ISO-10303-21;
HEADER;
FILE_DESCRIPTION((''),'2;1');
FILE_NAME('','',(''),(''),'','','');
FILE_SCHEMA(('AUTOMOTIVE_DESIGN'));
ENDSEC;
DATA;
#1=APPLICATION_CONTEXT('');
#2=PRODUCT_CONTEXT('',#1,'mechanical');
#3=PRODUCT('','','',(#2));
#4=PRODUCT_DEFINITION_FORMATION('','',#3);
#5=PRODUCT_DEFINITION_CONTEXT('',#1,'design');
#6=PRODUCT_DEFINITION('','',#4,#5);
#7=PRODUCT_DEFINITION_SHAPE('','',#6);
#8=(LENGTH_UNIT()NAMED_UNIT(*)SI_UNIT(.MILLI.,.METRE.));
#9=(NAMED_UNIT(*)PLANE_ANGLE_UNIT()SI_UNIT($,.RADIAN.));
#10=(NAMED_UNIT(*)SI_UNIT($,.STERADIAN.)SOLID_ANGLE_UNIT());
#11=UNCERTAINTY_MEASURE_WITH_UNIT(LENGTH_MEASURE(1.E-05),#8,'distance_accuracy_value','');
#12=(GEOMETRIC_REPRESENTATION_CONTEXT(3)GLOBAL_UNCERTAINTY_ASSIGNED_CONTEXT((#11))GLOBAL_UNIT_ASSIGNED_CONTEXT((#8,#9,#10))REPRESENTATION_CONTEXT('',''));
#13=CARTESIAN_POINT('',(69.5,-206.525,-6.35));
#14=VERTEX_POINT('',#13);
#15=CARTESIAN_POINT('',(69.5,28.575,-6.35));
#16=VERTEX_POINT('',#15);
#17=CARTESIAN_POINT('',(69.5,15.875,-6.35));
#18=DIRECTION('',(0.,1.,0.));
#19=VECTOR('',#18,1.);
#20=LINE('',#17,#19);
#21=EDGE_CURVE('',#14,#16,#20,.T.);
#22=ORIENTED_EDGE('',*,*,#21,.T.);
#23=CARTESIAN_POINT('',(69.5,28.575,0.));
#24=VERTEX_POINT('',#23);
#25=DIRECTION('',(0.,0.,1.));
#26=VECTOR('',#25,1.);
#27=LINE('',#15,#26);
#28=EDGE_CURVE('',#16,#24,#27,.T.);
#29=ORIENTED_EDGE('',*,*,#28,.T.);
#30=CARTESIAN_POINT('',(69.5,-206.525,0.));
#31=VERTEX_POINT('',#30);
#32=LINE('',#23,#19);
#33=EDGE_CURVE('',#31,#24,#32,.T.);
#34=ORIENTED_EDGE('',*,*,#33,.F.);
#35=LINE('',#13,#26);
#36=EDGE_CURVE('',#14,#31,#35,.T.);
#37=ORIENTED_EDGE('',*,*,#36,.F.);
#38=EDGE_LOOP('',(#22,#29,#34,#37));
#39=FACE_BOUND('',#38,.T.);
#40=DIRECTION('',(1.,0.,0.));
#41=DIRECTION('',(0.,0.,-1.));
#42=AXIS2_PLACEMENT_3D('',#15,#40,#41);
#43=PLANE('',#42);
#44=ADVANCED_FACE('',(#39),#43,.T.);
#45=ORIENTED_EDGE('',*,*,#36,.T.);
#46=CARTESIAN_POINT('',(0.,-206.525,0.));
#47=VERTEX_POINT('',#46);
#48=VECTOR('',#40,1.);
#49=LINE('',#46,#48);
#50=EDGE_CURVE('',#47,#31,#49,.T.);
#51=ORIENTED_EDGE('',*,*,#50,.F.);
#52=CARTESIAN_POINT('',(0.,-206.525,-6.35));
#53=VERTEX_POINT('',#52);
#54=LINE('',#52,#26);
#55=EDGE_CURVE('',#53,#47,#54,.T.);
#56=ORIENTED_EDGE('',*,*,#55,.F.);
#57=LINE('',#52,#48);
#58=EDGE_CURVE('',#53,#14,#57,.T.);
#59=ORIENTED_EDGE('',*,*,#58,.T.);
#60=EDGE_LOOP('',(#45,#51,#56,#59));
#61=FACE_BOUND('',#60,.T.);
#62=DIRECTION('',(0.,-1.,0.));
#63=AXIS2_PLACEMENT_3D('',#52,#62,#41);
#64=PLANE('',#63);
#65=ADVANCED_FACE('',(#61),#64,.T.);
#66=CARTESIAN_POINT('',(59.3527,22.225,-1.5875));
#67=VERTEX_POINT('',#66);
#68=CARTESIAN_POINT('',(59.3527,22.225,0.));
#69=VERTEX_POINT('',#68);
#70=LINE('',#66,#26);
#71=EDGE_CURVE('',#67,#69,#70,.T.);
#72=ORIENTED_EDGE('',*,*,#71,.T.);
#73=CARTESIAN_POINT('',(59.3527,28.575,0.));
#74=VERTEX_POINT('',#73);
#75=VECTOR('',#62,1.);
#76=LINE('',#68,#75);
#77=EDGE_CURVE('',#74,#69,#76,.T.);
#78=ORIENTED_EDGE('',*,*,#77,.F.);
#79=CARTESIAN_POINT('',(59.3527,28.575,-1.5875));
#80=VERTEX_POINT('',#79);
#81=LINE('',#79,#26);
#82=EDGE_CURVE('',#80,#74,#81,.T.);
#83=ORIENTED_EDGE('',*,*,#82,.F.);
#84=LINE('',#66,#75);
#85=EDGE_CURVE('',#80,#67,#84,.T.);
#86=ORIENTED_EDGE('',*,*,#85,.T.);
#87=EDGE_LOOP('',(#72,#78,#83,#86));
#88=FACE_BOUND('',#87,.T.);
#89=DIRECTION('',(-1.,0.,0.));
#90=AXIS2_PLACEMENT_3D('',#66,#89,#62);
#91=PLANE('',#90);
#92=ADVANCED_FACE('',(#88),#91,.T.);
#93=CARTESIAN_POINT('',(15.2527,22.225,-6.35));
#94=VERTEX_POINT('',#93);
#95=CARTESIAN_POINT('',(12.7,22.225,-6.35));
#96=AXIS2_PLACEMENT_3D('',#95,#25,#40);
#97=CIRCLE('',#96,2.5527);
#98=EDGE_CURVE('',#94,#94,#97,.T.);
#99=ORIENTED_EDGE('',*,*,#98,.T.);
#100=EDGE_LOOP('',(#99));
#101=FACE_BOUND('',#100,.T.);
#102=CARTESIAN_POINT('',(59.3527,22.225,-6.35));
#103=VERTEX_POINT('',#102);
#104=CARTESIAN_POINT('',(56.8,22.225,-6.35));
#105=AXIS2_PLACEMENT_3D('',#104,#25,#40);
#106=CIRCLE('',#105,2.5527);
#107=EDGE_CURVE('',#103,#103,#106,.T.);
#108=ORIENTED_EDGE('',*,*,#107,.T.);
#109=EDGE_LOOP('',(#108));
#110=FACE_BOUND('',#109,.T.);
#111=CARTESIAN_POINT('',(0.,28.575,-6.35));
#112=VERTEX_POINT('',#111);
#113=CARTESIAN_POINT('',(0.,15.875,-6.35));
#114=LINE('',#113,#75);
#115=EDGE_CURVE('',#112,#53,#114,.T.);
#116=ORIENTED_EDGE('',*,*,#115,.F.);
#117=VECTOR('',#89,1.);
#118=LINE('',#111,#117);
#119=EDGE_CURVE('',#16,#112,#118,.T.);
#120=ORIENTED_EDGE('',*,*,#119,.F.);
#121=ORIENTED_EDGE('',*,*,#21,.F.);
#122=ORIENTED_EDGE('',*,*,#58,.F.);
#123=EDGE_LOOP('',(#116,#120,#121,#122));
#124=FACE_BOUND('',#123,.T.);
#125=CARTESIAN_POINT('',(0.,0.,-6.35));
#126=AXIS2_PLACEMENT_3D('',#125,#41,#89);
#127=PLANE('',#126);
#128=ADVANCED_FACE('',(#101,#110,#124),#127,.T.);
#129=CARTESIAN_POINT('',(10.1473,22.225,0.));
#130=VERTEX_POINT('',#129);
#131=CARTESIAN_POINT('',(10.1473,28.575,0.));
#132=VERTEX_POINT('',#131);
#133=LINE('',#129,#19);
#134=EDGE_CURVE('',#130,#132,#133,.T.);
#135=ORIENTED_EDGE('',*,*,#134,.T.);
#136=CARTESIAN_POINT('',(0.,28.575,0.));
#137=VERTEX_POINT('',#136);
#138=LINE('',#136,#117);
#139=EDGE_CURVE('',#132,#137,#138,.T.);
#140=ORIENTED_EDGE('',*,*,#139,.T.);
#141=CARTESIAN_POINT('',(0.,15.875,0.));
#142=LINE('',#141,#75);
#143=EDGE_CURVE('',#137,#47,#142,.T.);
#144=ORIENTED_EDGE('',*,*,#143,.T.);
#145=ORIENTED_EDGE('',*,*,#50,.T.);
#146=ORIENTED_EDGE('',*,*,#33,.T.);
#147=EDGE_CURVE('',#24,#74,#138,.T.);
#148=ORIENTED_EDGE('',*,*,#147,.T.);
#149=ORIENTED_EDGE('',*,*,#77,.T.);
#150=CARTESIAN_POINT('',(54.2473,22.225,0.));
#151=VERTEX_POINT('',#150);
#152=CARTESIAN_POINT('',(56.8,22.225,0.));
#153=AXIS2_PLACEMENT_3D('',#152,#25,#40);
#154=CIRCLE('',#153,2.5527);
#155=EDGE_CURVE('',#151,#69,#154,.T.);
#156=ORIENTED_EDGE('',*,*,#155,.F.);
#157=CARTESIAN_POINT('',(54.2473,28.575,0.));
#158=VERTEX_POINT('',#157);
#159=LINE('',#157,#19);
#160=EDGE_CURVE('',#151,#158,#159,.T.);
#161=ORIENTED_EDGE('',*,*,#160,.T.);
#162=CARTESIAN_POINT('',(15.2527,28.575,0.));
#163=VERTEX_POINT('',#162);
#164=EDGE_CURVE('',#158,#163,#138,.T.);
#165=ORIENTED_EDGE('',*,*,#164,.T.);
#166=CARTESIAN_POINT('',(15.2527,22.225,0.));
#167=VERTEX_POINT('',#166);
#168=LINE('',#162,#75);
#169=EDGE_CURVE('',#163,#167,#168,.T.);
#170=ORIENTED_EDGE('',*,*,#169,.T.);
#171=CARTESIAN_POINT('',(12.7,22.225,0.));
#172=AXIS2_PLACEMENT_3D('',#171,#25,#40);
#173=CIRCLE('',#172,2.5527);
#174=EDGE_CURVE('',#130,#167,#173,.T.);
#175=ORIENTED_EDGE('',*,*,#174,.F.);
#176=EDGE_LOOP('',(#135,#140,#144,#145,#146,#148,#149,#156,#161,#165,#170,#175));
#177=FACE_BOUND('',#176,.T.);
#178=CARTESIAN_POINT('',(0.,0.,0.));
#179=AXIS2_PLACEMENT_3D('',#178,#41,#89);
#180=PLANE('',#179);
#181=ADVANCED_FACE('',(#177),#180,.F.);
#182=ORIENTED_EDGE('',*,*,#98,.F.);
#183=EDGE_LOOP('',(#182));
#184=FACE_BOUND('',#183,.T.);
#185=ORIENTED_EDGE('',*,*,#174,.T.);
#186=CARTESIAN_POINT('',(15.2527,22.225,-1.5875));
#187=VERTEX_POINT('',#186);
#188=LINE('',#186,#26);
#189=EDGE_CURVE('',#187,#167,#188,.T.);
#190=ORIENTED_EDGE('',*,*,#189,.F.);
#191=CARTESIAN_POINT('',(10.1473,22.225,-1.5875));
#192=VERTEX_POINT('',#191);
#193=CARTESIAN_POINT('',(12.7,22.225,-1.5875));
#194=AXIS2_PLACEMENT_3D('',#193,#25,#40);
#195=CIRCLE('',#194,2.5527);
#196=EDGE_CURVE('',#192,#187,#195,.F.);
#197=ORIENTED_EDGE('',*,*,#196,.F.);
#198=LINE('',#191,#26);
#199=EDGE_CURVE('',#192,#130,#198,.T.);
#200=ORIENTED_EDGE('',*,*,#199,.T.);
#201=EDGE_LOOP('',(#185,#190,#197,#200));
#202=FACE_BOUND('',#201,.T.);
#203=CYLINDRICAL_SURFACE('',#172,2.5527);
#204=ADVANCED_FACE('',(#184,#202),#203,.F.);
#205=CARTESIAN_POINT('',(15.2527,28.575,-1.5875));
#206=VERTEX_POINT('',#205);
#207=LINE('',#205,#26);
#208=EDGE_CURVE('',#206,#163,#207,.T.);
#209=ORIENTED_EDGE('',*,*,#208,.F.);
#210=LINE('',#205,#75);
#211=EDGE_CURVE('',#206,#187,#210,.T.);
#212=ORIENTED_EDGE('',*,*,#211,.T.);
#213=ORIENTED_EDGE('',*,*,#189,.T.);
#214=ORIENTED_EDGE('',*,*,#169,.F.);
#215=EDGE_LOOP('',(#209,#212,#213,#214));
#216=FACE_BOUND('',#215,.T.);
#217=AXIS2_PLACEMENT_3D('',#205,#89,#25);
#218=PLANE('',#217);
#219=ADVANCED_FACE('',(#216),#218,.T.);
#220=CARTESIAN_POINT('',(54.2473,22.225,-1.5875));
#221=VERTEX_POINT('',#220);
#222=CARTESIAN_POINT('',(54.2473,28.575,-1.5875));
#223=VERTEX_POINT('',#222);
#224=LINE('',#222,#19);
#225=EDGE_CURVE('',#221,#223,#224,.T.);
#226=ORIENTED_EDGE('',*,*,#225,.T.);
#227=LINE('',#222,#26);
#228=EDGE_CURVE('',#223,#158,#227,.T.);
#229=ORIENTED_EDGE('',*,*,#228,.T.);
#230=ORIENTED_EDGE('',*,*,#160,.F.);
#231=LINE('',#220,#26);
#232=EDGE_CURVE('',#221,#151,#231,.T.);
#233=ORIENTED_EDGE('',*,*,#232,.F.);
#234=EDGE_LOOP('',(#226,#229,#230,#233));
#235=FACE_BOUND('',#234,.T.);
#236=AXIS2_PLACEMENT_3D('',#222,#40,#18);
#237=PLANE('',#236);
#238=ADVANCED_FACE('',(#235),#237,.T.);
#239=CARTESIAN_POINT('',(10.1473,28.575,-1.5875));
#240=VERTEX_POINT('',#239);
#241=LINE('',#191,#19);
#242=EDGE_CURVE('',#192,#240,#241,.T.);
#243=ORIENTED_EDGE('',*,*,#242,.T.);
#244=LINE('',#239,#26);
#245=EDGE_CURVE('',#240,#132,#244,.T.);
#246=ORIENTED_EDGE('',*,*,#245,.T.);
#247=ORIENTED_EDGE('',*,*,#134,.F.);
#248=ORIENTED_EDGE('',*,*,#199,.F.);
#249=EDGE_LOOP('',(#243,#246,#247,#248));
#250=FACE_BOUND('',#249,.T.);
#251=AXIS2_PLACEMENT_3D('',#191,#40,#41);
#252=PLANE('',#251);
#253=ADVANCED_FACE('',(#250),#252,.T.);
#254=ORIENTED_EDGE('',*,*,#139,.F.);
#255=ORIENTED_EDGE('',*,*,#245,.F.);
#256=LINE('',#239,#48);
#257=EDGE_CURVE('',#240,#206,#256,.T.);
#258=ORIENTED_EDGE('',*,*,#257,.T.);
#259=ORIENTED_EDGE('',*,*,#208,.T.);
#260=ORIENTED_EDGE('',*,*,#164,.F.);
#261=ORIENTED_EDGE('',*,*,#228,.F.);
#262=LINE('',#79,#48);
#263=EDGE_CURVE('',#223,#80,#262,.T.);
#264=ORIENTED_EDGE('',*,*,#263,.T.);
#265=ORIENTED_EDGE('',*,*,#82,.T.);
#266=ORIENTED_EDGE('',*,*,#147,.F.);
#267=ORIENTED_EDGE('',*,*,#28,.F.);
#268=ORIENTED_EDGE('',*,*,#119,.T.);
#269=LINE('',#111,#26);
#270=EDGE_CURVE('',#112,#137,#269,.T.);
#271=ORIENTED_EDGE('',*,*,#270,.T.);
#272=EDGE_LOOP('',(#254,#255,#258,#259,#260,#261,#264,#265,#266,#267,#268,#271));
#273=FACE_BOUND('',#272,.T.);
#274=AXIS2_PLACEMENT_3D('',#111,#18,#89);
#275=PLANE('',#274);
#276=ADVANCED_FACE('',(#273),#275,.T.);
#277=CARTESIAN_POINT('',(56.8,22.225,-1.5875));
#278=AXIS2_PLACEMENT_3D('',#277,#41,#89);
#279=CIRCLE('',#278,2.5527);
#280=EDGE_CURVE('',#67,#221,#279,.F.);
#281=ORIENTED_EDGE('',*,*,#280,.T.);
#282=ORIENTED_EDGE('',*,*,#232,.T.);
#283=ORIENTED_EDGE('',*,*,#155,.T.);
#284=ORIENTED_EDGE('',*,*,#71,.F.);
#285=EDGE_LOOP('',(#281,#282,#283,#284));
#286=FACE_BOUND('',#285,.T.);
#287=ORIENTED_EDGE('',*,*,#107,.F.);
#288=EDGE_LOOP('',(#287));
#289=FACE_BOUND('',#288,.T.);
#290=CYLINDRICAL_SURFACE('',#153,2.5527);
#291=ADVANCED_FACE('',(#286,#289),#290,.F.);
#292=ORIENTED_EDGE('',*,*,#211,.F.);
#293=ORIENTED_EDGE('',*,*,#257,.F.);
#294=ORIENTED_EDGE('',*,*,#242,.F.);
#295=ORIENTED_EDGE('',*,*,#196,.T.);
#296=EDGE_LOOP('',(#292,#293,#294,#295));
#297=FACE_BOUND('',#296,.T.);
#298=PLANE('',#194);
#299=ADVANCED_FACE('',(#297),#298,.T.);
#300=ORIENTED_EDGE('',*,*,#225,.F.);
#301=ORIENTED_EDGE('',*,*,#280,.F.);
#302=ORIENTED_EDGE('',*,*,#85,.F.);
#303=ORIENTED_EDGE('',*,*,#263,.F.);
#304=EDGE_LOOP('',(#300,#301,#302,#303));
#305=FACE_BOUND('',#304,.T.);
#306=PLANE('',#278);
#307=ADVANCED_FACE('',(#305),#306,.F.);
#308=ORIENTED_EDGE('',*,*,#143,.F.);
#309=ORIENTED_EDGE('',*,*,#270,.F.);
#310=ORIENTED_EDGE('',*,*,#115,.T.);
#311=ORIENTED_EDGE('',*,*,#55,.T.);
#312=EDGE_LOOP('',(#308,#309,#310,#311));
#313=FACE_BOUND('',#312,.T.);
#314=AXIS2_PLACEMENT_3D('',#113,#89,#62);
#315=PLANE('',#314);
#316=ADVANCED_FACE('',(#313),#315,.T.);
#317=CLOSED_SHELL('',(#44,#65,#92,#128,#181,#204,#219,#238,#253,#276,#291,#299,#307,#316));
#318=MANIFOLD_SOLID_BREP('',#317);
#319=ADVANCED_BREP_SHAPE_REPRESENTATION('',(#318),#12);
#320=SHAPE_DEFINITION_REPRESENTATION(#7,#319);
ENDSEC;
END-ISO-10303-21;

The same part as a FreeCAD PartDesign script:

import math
import FreeCAD as App
import Part
import Sketcher
from FreeCAD import Vector
Q = App.Units.Quantity

doc = App.newDocument("Part")
body = doc.addObject("PartDesign::Body", "Body")

sketch1 = body.newObject("Sketcher::SketchObject", "Sketch")
sketch1.AttachmentSupport = (doc.getObject("XY_Plane"), [""])
sketch1.MapMode = "FlatFace"
sketch1.addGeometry([
    Part.LineSegment(Vector(0, -207, 0), Vector(70, -207, 0)),
    Part.LineSegment(Vector(70, -207, 0), Vector(70, 29, 0)),
    Part.LineSegment(Vector(70, 29, 0), Vector(0, 29, 0)),
    Part.LineSegment(Vector(0, 29, 0), Vector(0, -207, 0)),
], False)
sketch1.addConstraint([
    Sketcher.Constraint("Coincident", 0, 2, 1, 1),
    Sketcher.Constraint("Coincident", 1, 2, 2, 1),
    Sketcher.Constraint("Coincident", 2, 2, 3, 1),
    Sketcher.Constraint("Coincident", 3, 2, 0, 1),
    Sketcher.Constraint("Horizontal", 0),
    Sketcher.Constraint("Vertical", 1),
    Sketcher.Constraint("Horizontal", 2),
    Sketcher.Constraint("Vertical", 3),
    Sketcher.Constraint("PointOnObject", 2, 2, -2),
    Sketcher.Constraint("DistanceY", -1, 1, 1, 2, Q("1.125 in")),
    Sketcher.Constraint("DistanceX", 0, 1, 0, 2, 69.5),
    Sketcher.Constraint("DistanceY", 1, 1, 1, 2, 235.1),
])
pad1 = body.newObject("PartDesign::Pad", "Pad")
pad1.Profile = sketch1
pad1.Length = Q("0.25 in")
pad1.Reversed = True

sketch2 = body.newObject("Sketcher::SketchObject", "Sketch001")
sketch2.AttachmentSupport = (doc.getObject("XY_Plane"), [""])
sketch2.MapMode = "FlatFace"
sketch2.addGeometry([
    Part.Circle(Vector(12.7, 22.2, 0), Vector(0, 0, 1), 2.6),
    Part.Circle(Vector(56.8, 22.2, 0), Vector(0, 0, 1), 2.6),
], False)
sketch2.addConstraint([
    Sketcher.Constraint("Equal", 0, 1),
    Sketcher.Constraint("Horizontal", 0, 3, 1, 3),
    Sketcher.Constraint("Diameter", 0, Q("0.201 in")),
    Sketcher.Constraint("DistanceX", -1, 1, 0, 3, Q("0.5 in")),
    Sketcher.Constraint("DistanceY", -1, 1, 0, 3, Q("0.875 in")),
    Sketcher.Constraint("DistanceX", -1, 1, 1, 3, 56.8),
])
doc.recompute()
hole = body.newObject("PartDesign::Hole", "Hole")
hole.Profile = sketch2
hole.ThreadType = "None"
hole.Diameter = Q("0.201 in")
hole.DepthType = "ThroughAll"

sketch3 = body.newObject("Sketcher::SketchObject", "Sketch002")
sketch3.AttachmentSupport = (doc.getObject("XY_Plane"), [""])
sketch3.MapMode = "FlatFace"
sketch3.addGeometry([
    Part.LineSegment(Vector(59.4, 28.6, 0), Vector(59.4, 22.2, 0)),
    Part.ArcOfCircle(Part.Circle(Vector(56.8, 22.2, 0), Vector(0, 0, 1), 2.6), math.radians(180), math.radians(360)),
    Part.LineSegment(Vector(54.2, 22.2, 0), Vector(54.2, 28.6, 0)),
    Part.LineSegment(Vector(54.2, 28.6, 0), Vector(59.4, 28.6, 0)),
    Part.LineSegment(Vector(10.1, 22.2, 0), Vector(10.1, 28.6, 0)),
    Part.LineSegment(Vector(10.1, 28.6, 0), Vector(15.3, 28.6, 0)),
    Part.LineSegment(Vector(15.3, 28.6, 0), Vector(15.3, 22.2, 0)),
    Part.ArcOfCircle(Part.Circle(Vector(12.7, 22.2, 0), Vector(0, 0, 1), 2.6), math.radians(180), math.radians(360)),
], False)
sketch3.addConstraint([
    Sketcher.Constraint("Tangent", 0, 2, 1, 2),
    Sketcher.Constraint("Tangent", 1, 1, 2, 1),
    Sketcher.Constraint("Coincident", 2, 2, 3, 1),
    Sketcher.Constraint("Coincident", 3, 2, 0, 1),
    Sketcher.Constraint("Coincident", 4, 2, 5, 1),
    Sketcher.Constraint("Coincident", 5, 2, 6, 1),
    Sketcher.Constraint("Tangent", 6, 2, 7, 2),
    Sketcher.Constraint("Tangent", 7, 1, 4, 1),
    Sketcher.Constraint("Vertical", 0),
    Sketcher.Constraint("Vertical", 2),
    Sketcher.Constraint("Horizontal", 3),
    Sketcher.Constraint("Vertical", 4),
    Sketcher.Constraint("Horizontal", 5),
    Sketcher.Constraint("Vertical", 6),
    Sketcher.Constraint("Equal", 1, 7),
    Sketcher.Constraint("Horizontal", 1, 3, 7, 3),
    Sketcher.Constraint("Horizontal", 3, 2, 4, 2),
    Sketcher.Constraint("DistanceY", 0, 2, 0, 1, Q("0.25 in")),
    Sketcher.Constraint("DistanceX", -1, 1, 7, 3, Q("0.5 in")),
    Sketcher.Constraint("Radius", 1, Q("0.1005 in")),
    Sketcher.Constraint("DistanceY", -1, 1, 1, 3, Q("0.875 in")),
    Sketcher.Constraint("DistanceX", -1, 1, 1, 3, 56.8),
])
pocket1 = body.newObject("PartDesign::Pocket", "Pocket")
pocket1.Profile = sketch3
pocket1.Length = Q("0.0625 in")

doc.recompute()
